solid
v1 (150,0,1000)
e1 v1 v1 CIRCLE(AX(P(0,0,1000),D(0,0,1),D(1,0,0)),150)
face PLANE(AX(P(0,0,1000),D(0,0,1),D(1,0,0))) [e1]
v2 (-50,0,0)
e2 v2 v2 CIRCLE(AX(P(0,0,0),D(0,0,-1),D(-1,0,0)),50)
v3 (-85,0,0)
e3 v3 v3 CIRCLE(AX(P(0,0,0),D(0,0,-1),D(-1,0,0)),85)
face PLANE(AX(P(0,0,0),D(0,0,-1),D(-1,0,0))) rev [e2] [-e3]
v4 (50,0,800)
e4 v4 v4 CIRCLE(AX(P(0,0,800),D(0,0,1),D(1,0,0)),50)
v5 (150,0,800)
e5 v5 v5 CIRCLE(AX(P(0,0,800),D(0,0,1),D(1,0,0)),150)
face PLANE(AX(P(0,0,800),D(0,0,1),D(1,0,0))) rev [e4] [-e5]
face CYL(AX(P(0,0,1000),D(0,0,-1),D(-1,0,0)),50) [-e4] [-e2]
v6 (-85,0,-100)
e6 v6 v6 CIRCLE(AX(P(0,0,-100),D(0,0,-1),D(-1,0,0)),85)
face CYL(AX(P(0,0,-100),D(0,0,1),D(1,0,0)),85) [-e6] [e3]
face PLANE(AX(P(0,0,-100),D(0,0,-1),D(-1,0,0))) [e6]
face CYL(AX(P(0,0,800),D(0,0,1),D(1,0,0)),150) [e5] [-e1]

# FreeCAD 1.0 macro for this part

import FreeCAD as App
import Part
import Sketcher
from FreeCAD import Vector

doc = App.newDocument("Part")
params = doc.addObject("Spreadsheet::Sheet", "Params")
for row, (alias, value) in enumerate([
    ("sketch1_diameter", "100 mm"),
    ("pad1_length", "1000 mm"),
    ("sketch2_diameter", "300 mm"),
    ("pad2_length", "200 mm"),
    ("sketch3_diameter", "170 mm"),
    ("pad3_length", "100 mm"),
], start=1):
    params.set(f"A{row}", alias)
    params.set(f"B{row}", "=" + value)
    params.setAlias(f"B{row}", alias)

body = doc.addObject("PartDesign::Body", "Body")

sketch1 = body.newObject("Sketcher::SketchObject", "Sketch")
sketch1.AttachmentSupport = (doc.getObject("XY_Plane"), [""])
sketch1.MapMode = "FlatFace"
sketch1.addGeometry(Part.Circle(Vector(0, 0, 0), Vector(0, 0, 1), 50), False)
sketch1.addConstraint(Sketcher.Constraint("Coincident", 0, 3, -1, 1))
sketch1.addConstraint(Sketcher.Constraint("Diameter", 0, 100.0))
sketch1.setExpression("Constraints[1]", "Params.sketch1_diameter")
pad1 = body.newObject("PartDesign::Pad", "Pad")
pad1.Profile = sketch1
pad1.setExpression("Length", "Params.pad1_length")

sketch2 = body.newObject("Sketcher::SketchObject", "Sketch001")
sketch2.AttachmentSupport = (doc.getObject("XY_Plane"), [""])
sketch2.MapMode = "FlatFace"
sketch2.AttachmentOffset = App.Placement(Vector(0, 0, 1000), App.Rotation())
sketch2.addGeometry(Part.Circle(Vector(0, 0, 0), Vector(0, 0, 1), 150), False)
sketch2.addConstraint(Sketcher.Constraint("Coincident", 0, 3, -1, 1))
sketch2.addConstraint(Sketcher.Constraint("Diameter", 0, 300.0))
sketch2.setExpression("Constraints[1]", "Params.sketch2_diameter")
pad2 = body.newObject("PartDesign::Pad", "Pad001")
pad2.Profile = sketch2
pad2.setExpression("Length", "Params.pad2_length")
pad2.Reversed = True

sketch3 = body.newObject("Sketcher::SketchObject", "Sketch002")
sketch3.AttachmentSupport = (doc.getObject("XY_Plane"), [""])
sketch3.MapMode = "FlatFace"
sketch3.addGeometry(Part.Circle(Vector(0, 0, 0), Vector(0, 0, 1), 85), False)
sketch3.addConstraint(Sketcher.Constraint("Coincident", 0, 3, -1, 1))
sketch3.addConstraint(Sketcher.Constraint("Diameter", 0, 170.0))
sketch3.setExpression("Constraints[1]", "Params.sketch3_diameter")
pad3 = body.newObject("PartDesign::Pad", "Pad002")
pad3.Profile = sketch3
pad3.setExpression("Length", "Params.pad3_length")
pad3.Reversed = True

doc.recompute()
